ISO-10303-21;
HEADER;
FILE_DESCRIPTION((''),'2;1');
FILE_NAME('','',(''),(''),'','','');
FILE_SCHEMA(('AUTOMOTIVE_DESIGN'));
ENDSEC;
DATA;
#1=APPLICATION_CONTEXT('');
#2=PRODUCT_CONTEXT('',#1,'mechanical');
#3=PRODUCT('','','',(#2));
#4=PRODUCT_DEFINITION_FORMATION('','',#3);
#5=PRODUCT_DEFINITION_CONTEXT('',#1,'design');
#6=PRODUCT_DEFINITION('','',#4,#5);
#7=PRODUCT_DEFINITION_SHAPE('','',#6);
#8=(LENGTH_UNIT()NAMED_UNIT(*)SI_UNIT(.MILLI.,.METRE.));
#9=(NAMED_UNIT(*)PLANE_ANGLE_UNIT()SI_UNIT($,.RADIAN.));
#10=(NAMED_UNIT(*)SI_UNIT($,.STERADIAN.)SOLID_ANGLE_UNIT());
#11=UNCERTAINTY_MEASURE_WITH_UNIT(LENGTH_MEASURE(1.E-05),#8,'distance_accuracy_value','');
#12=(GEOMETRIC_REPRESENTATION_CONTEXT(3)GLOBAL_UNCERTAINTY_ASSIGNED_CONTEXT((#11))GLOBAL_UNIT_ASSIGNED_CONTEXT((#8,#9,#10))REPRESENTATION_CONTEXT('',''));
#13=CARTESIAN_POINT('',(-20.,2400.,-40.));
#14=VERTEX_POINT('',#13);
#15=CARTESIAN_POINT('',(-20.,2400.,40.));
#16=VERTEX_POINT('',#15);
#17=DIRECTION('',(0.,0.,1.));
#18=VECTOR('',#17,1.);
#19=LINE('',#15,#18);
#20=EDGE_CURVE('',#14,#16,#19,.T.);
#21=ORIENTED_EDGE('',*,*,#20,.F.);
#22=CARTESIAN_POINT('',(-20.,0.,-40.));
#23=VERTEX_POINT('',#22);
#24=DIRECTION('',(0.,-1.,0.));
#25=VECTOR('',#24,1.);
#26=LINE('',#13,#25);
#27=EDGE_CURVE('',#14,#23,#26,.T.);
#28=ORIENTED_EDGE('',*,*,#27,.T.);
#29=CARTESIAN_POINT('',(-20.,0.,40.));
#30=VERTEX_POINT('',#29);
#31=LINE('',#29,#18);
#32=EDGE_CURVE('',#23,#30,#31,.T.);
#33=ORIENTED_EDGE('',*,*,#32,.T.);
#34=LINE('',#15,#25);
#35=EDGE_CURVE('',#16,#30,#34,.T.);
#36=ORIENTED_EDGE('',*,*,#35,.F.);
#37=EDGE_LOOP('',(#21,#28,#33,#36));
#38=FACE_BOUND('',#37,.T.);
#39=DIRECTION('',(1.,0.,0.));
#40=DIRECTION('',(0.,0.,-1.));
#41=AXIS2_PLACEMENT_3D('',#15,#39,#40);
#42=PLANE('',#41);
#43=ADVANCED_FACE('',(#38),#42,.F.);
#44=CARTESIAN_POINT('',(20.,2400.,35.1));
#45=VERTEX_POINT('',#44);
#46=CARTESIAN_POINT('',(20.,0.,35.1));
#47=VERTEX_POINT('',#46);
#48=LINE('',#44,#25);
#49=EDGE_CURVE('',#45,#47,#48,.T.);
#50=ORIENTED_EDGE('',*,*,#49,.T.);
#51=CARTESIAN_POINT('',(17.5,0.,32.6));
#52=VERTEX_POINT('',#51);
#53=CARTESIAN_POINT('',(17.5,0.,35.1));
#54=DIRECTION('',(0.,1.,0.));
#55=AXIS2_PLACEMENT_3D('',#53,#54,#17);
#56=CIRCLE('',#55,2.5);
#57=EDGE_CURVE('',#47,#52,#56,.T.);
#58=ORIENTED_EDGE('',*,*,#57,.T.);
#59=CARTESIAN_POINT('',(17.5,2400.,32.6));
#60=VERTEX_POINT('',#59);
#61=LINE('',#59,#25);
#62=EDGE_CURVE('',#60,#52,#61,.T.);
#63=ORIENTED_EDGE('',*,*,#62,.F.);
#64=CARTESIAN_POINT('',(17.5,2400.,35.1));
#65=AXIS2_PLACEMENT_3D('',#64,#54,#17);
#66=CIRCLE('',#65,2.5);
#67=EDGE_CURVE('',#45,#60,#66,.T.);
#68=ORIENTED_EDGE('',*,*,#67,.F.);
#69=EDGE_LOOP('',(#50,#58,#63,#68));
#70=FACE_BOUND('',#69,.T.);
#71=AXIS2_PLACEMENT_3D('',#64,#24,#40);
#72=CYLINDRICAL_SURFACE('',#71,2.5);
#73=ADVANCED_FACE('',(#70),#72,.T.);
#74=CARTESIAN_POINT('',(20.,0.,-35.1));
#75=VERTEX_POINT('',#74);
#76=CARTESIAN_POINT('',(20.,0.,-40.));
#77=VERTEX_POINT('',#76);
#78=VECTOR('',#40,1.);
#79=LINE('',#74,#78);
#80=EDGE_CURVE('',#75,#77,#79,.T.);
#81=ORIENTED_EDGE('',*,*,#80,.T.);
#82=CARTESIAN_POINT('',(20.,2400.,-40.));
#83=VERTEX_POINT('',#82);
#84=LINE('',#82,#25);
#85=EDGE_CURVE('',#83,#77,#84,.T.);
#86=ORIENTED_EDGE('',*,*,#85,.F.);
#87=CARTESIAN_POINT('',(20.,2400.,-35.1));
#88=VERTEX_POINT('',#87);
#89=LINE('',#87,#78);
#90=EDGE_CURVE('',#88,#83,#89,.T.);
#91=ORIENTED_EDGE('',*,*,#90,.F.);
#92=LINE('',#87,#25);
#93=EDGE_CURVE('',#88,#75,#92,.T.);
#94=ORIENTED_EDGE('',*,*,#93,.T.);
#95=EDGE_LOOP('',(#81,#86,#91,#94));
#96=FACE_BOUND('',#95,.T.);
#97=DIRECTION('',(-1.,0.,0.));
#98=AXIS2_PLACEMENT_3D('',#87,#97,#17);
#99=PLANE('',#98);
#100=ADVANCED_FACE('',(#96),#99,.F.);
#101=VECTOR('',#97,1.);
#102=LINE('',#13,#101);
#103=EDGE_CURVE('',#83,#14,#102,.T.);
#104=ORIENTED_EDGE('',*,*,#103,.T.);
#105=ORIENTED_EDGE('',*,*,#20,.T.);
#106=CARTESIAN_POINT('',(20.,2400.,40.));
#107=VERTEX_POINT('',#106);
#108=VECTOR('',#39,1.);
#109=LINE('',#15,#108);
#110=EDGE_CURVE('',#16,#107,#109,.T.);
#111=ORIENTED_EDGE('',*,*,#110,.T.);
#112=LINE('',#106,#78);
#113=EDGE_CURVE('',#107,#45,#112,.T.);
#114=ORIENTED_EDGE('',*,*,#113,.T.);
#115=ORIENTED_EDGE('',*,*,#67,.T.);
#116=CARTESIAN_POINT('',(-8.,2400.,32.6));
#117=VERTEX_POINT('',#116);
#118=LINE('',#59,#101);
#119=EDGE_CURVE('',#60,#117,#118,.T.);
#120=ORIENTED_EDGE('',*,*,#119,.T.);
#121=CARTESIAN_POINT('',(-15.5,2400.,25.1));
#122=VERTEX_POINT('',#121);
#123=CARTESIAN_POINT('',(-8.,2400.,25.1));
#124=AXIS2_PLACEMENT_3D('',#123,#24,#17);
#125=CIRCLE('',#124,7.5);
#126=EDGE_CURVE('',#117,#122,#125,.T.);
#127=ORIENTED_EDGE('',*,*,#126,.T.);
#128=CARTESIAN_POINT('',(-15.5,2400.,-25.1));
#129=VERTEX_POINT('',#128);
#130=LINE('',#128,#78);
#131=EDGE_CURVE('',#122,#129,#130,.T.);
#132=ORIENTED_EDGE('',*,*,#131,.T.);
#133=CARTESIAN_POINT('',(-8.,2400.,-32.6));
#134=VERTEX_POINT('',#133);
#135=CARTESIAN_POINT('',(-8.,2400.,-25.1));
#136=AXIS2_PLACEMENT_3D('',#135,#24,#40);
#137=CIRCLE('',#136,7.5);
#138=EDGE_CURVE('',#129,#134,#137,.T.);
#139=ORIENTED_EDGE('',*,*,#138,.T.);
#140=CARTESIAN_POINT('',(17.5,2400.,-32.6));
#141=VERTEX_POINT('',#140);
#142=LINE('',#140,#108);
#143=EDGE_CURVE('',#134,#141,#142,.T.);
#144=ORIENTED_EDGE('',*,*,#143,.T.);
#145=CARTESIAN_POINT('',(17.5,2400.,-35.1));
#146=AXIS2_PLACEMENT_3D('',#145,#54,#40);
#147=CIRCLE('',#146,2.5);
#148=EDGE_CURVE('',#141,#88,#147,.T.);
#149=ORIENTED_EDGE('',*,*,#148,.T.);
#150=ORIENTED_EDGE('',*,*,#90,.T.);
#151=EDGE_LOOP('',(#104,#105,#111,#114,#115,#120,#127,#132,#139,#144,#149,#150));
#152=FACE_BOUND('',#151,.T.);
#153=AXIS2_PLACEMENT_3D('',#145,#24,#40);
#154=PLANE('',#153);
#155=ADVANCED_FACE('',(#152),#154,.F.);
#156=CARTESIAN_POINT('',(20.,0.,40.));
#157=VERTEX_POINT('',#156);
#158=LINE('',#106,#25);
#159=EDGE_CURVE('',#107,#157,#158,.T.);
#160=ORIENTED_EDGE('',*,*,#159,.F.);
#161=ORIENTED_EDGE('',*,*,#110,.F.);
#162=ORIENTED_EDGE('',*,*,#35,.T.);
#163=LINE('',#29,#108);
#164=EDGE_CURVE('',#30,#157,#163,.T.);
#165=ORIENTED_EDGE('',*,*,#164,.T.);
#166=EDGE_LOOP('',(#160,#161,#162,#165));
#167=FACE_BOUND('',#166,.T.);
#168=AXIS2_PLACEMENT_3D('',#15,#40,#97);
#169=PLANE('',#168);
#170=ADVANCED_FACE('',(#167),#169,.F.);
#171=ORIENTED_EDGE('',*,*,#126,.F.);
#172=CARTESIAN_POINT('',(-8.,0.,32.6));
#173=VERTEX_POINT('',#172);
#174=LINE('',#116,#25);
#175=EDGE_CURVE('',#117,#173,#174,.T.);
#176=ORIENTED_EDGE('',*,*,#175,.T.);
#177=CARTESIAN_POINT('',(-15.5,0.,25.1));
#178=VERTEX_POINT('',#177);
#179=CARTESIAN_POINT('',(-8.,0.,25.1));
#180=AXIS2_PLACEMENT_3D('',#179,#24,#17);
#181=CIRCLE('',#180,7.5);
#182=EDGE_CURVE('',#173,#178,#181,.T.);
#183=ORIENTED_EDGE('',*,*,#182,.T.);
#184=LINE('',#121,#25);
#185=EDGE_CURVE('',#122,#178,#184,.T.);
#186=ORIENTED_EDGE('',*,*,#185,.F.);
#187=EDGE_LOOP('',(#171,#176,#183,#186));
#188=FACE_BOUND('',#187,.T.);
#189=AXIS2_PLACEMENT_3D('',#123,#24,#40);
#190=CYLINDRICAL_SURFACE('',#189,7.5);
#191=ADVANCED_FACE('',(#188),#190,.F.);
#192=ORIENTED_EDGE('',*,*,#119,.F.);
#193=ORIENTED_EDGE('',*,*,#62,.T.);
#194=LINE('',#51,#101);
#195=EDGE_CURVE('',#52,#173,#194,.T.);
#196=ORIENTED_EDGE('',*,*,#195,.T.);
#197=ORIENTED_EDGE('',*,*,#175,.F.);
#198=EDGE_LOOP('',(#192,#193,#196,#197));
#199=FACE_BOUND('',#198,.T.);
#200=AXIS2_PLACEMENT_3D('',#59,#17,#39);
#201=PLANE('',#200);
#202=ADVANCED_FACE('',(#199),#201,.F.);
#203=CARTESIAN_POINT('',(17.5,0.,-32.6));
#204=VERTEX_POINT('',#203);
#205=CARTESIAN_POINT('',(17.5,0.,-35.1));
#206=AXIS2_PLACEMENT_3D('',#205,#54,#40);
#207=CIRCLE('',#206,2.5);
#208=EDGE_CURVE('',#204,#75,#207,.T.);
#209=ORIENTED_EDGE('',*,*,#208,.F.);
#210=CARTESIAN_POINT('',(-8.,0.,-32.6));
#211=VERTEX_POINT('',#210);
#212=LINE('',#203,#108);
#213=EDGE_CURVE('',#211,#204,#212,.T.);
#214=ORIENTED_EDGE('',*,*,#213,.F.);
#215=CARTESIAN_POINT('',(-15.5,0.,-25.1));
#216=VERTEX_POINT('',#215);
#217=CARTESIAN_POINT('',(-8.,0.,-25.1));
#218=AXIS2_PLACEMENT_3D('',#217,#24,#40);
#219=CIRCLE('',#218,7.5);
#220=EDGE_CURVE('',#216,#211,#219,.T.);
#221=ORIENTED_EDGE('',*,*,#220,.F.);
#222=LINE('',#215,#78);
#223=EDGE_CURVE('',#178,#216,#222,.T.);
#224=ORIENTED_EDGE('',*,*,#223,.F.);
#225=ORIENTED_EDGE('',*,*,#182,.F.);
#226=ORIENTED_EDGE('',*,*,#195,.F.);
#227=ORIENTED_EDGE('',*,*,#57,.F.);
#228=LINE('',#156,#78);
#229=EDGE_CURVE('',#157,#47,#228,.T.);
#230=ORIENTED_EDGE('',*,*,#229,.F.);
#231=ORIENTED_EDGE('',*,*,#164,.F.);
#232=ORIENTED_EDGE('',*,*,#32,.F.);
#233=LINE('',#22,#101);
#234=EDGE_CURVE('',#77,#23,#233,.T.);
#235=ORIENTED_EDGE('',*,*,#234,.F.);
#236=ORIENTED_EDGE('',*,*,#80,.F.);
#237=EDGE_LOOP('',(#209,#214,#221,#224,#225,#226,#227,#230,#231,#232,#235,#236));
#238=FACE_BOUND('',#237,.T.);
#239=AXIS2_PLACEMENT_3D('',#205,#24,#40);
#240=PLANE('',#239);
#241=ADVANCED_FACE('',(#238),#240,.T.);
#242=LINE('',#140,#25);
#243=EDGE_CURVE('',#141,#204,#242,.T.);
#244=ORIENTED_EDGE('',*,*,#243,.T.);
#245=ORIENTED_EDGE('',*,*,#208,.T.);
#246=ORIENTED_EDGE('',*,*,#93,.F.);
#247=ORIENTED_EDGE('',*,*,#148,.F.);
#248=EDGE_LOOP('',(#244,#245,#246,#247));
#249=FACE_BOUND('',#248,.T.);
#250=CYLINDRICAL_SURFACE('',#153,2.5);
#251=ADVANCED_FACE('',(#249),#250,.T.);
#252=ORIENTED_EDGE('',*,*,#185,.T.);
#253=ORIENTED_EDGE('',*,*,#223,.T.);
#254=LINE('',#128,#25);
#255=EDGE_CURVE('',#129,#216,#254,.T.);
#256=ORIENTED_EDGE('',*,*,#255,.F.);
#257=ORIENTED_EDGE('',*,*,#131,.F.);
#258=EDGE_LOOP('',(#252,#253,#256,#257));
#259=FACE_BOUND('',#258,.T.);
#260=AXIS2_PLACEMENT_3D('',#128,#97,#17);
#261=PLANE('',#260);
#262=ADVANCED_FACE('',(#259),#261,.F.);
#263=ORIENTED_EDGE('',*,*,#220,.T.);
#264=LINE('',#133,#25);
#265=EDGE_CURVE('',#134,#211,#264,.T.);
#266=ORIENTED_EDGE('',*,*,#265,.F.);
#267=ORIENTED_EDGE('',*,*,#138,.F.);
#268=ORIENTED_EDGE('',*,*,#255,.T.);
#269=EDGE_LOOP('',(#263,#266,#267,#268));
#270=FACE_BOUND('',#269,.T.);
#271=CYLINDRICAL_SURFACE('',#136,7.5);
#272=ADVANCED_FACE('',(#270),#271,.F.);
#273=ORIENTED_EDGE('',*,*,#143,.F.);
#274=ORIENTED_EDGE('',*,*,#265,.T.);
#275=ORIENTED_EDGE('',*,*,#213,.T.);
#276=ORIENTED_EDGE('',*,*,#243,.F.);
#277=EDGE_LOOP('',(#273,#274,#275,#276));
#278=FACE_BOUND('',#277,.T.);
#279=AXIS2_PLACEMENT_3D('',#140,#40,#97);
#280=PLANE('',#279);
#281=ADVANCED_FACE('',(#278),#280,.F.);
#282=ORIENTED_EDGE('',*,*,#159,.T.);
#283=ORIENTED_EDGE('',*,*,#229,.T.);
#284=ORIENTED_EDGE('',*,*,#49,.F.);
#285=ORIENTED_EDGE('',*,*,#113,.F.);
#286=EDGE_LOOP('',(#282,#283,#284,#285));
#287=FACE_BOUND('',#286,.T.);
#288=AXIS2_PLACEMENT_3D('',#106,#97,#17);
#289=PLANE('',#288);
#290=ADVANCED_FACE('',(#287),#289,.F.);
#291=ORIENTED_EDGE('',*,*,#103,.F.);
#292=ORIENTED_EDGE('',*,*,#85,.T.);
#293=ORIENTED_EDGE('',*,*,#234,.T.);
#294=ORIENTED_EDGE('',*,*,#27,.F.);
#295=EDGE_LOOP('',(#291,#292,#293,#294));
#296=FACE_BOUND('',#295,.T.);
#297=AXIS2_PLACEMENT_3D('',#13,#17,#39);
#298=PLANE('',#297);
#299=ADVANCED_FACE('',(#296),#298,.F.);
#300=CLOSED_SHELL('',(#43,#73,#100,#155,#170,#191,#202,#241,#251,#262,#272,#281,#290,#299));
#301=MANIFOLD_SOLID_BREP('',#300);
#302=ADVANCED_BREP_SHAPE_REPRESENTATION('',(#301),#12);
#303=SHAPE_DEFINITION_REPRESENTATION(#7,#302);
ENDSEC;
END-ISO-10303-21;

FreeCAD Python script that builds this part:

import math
import FreeCAD as App
import Part
import Sketcher

doc = App.newDocument("Part")
body = doc.addObject("PartDesign::Body", "Body")

sketch1 = body.newObject("Sketcher::SketchObject", "Sketch")
sketch1.AttachmentSupport = (doc.getObject("XZ_Plane"), [""])
sketch1.MapMode = "FlatFace"
sketch1.addGeometry([
    Part.LineSegment(App.Vector(20, -35.1, 0), App.Vector(20, -40, 0)),
    Part.LineSegment(App.Vector(20, -40, 0), App.Vector(-20, -40, 0)),
    Part.LineSegment(App.Vector(-20, -40, 0), App.Vector(-20, 40, 0)),
    Part.LineSegment(App.Vector(-20, 40, 0), App.Vector(20, 40, 0)),
    Part.LineSegment(App.Vector(20, 40, 0), App.Vector(20, 35.1, 0)),
    Part.ArcOfCircle(Part.Circle(App.Vector(17.5, 35.1, 0), App.Vector(0, 0, 1), 2.5), math.radians(-90), math.radians(0)),
    Part.LineSegment(App.Vector(17.5, 32.6, 0), App.Vector(-8, 32.6, 0)),
    Part.ArcOfCircle(Part.Circle(App.Vector(-8, 25.1, 0), App.Vector(0, 0, 1), 7.5), math.radians(90), math.radians(180)),
    Part.LineSegment(App.Vector(-15.5, 25.1, 0), App.Vector(-15.5, -25.1, 0)),
    Part.ArcOfCircle(Part.Circle(App.Vector(-8, -25.1, 0), App.Vector(0, 0, 1), 7.5), math.radians(180), math.radians(270)),
    Part.LineSegment(App.Vector(-8, -32.6, 0), App.Vector(17.5, -32.6, 0)),
    Part.ArcOfCircle(Part.Circle(App.Vector(17.5, -35.1, 0), App.Vector(0, 0, 1), 2.5), math.radians(0), math.radians(90)),
], False)
sketch1.addConstraint([
    Sketcher.Constraint("Coincident", 0, 2, 1, 1),
    Sketcher.Constraint("Coincident", 1, 2, 2, 1),
    Sketcher.Constraint("Coincident", 2, 2, 3, 1),
    Sketcher.Constraint("Coincident", 3, 2, 4, 1),
    Sketcher.Constraint("Tangent", 4, 2, 5, 2),
    Sketcher.Constraint("Tangent", 5, 1, 6, 1),
    Sketcher.Constraint("Tangent", 6, 2, 7, 1),
    Sketcher.Constraint("Tangent", 7, 2, 8, 1),
    Sketcher.Constraint("Tangent", 8, 2, 9, 1),
    Sketcher.Constraint("Tangent", 9, 2, 10, 1),
    Sketcher.Constraint("Tangent", 10, 2, 11, 2),
    Sketcher.Constraint("Tangent", 11, 1, 0, 1),
    Sketcher.Constraint("Vertical", 0),
    Sketcher.Constraint("Horizontal", 1),
    Sketcher.Constraint("Vertical", 2),
    Sketcher.Constraint("Horizontal", 3),
    Sketcher.Constraint("Vertical", 4),
    Sketcher.Constraint("Horizontal", 6),
    Sketcher.Constraint("Vertical", 8),
    Sketcher.Constraint("Horizontal", 10),
    Sketcher.Constraint("Equal", 7, 9),
    Sketcher.Constraint("Equal", 5, 11),
    Sketcher.Constraint("Symmetric", 0, 2, 2, 2, -1, 1),
    Sketcher.Constraint("Symmetric", 5, 3, 11, 3, -1),
    Sketcher.Constraint("Radius", 5, 2.5),
    Sketcher.Constraint("Radius", 7, 7.5),
    Sketcher.Constraint("DistanceX", 1, 2, 1, 1, 40.0),
    Sketcher.Constraint("DistanceY", 2, 1, 2, 2, 80.0),
    Sketcher.Constraint("DistanceX", 6, 2, 6, 1, 25.5),
    Sketcher.Constraint("DistanceY", 0, 2, 0, 1, 4.9),
])
pad1 = body.newObject("PartDesign::Pad", "Pad")
pad1.Profile = sketch1
pad1.Length = 2400
pad1.Reversed = True

doc.recompute()
